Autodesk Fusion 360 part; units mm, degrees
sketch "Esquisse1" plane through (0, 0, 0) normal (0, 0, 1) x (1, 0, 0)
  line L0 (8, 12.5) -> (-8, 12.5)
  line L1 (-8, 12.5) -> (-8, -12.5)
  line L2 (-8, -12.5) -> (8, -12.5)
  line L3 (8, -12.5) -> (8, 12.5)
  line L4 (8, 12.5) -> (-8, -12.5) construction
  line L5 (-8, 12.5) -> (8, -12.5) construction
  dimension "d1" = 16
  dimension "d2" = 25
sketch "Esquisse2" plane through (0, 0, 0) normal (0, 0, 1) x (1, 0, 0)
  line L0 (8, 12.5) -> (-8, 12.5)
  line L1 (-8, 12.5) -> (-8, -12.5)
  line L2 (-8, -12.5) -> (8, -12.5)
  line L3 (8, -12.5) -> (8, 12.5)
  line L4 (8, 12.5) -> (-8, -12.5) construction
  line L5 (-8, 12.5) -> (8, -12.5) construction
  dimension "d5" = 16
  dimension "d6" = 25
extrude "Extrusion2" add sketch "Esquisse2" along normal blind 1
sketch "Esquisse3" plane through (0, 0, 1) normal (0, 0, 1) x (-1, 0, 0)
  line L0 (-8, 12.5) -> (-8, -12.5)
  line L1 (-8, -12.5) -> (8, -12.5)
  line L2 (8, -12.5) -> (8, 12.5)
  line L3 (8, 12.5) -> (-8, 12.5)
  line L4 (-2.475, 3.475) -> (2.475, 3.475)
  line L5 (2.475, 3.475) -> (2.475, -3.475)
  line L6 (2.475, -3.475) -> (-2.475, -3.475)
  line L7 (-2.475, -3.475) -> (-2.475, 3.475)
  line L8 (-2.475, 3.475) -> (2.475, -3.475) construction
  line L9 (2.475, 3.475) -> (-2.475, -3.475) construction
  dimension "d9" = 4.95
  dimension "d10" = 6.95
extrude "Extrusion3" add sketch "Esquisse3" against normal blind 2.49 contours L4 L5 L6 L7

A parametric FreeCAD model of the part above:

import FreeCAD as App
import Part
import Sketcher

doc = App.newDocument("Part")
body = doc.addObject("PartDesign::Body", "Body")

sketch1 = doc.addObject("Sketcher::SketchObject", "Sketch")
body.addObject(sketch1)
sketch1.AttachmentSupport = (doc.XY_Plane, [""])
sketch1.MapMode = "FlatFace"
sketch1.addGeometry(Part.LineSegment(App.Vector(8, -12.5, 0), App.Vector(8, 12.5, 0)), False)
sketch1.addGeometry(Part.LineSegment(App.Vector(8, 12.5, 0), App.Vector(-8, 12.5, 0)), False)
sketch1.addGeometry(Part.LineSegment(App.Vector(-8, 12.5, 0), App.Vector(-8, -12.5, 0)), False)
sketch1.addGeometry(Part.LineSegment(App.Vector(-8, -12.5, 0), App.Vector(8, -12.5, 0)), False)
sketch1.addConstraint(Sketcher.Constraint("Coincident", 0, 2, 1, 1))
sketch1.addConstraint(Sketcher.Constraint("Coincident", 1, 2, 2, 1))
sketch1.addConstraint(Sketcher.Constraint("Coincident", 2, 2, 3, 1))
sketch1.addConstraint(Sketcher.Constraint("Coincident", 3, 2, 0, 1))
sketch1.addConstraint(Sketcher.Constraint("Vertical", 0))
sketch1.addConstraint(Sketcher.Constraint("Horizontal", 1))
sketch1.addConstraint(Sketcher.Constraint("Vertical", 2))
sketch1.addConstraint(Sketcher.Constraint("Horizontal", 3))
sketch1.addConstraint(Sketcher.Constraint("Symmetric", 0, 2, 2, 2, -1, 1))
sketch1.addConstraint(Sketcher.Constraint("DistanceX", 1, 2, 1, 1, 16.0))
sketch1.addConstraint(Sketcher.Constraint("DistanceY", 0, 1, 0, 2, 25.0))
pad1 = doc.addObject("PartDesign::Pad", "Pad")
body.addObject(pad1)
pad1.Profile = sketch1
pad1.Length = 1

sketch2 = doc.addObject("Sketcher::SketchObject", "Sketch001")
body.addObject(sketch2)
sketch2.AttachmentSupport = (doc.XY_Plane, [""])
sketch2.MapMode = "FlatFace"
sketch2.AttachmentOffset = App.Placement(App.Vector(0, 0, 1), App.Rotation())
sketch2.addGeometry(Part.LineSegment(App.Vector(-2.475, -3.475, 0), App.Vector(2.475, -3.475, 0)), False)
sketch2.addGeometry(Part.LineSegment(App.Vector(2.475, -3.475, 0), App.Vector(2.475, 3.475, 0)), False)
sketch2.addGeometry(Part.LineSegment(App.Vector(2.475, 3.475, 0), App.Vector(-2.475, 3.475, 0)), False)
sketch2.addGeometry(Part.LineSegment(App.Vector(-2.475, 3.475, 0), App.Vector(-2.475, -3.475, 0)), False)
sketch2.addConstraint(Sketcher.Constraint("Coincident", 0, 2, 1, 1))
sketch2.addConstraint(Sketcher.Constraint("Coincident", 1, 2, 2, 1))
sketch2.addConstraint(Sketcher.Constraint("Coincident", 2, 2, 3, 1))
sketch2.addConstraint(Sketcher.Constraint("Coincident", 3, 2, 0, 1))
sketch2.addConstraint(Sketcher.Constraint("Horizontal", 0))
sketch2.addConstraint(Sketcher.Constraint("Vertical", 1))
sketch2.addConstraint(Sketcher.Constraint("Horizontal", 2))
sketch2.addConstraint(Sketcher.Constraint("Vertical", 3))
sketch2.addConstraint(Sketcher.Constraint("Symmetric", 0, 2, 2, 2, -1, 1))
sketch2.addConstraint(Sketcher.Constraint("DistanceX", 0, 1, 0, 2, 4.95))
sketch2.addConstraint(Sketcher.Constraint("DistanceY", 1, 1, 1, 2, 6.95))
pad2 = doc.addObject("PartDesign::Pad", "Pad001")
body.addObject(pad2)
pad2.Profile = sketch2
pad2.Length = 2.49
pad2.Reversed = True

doc.recompute()
